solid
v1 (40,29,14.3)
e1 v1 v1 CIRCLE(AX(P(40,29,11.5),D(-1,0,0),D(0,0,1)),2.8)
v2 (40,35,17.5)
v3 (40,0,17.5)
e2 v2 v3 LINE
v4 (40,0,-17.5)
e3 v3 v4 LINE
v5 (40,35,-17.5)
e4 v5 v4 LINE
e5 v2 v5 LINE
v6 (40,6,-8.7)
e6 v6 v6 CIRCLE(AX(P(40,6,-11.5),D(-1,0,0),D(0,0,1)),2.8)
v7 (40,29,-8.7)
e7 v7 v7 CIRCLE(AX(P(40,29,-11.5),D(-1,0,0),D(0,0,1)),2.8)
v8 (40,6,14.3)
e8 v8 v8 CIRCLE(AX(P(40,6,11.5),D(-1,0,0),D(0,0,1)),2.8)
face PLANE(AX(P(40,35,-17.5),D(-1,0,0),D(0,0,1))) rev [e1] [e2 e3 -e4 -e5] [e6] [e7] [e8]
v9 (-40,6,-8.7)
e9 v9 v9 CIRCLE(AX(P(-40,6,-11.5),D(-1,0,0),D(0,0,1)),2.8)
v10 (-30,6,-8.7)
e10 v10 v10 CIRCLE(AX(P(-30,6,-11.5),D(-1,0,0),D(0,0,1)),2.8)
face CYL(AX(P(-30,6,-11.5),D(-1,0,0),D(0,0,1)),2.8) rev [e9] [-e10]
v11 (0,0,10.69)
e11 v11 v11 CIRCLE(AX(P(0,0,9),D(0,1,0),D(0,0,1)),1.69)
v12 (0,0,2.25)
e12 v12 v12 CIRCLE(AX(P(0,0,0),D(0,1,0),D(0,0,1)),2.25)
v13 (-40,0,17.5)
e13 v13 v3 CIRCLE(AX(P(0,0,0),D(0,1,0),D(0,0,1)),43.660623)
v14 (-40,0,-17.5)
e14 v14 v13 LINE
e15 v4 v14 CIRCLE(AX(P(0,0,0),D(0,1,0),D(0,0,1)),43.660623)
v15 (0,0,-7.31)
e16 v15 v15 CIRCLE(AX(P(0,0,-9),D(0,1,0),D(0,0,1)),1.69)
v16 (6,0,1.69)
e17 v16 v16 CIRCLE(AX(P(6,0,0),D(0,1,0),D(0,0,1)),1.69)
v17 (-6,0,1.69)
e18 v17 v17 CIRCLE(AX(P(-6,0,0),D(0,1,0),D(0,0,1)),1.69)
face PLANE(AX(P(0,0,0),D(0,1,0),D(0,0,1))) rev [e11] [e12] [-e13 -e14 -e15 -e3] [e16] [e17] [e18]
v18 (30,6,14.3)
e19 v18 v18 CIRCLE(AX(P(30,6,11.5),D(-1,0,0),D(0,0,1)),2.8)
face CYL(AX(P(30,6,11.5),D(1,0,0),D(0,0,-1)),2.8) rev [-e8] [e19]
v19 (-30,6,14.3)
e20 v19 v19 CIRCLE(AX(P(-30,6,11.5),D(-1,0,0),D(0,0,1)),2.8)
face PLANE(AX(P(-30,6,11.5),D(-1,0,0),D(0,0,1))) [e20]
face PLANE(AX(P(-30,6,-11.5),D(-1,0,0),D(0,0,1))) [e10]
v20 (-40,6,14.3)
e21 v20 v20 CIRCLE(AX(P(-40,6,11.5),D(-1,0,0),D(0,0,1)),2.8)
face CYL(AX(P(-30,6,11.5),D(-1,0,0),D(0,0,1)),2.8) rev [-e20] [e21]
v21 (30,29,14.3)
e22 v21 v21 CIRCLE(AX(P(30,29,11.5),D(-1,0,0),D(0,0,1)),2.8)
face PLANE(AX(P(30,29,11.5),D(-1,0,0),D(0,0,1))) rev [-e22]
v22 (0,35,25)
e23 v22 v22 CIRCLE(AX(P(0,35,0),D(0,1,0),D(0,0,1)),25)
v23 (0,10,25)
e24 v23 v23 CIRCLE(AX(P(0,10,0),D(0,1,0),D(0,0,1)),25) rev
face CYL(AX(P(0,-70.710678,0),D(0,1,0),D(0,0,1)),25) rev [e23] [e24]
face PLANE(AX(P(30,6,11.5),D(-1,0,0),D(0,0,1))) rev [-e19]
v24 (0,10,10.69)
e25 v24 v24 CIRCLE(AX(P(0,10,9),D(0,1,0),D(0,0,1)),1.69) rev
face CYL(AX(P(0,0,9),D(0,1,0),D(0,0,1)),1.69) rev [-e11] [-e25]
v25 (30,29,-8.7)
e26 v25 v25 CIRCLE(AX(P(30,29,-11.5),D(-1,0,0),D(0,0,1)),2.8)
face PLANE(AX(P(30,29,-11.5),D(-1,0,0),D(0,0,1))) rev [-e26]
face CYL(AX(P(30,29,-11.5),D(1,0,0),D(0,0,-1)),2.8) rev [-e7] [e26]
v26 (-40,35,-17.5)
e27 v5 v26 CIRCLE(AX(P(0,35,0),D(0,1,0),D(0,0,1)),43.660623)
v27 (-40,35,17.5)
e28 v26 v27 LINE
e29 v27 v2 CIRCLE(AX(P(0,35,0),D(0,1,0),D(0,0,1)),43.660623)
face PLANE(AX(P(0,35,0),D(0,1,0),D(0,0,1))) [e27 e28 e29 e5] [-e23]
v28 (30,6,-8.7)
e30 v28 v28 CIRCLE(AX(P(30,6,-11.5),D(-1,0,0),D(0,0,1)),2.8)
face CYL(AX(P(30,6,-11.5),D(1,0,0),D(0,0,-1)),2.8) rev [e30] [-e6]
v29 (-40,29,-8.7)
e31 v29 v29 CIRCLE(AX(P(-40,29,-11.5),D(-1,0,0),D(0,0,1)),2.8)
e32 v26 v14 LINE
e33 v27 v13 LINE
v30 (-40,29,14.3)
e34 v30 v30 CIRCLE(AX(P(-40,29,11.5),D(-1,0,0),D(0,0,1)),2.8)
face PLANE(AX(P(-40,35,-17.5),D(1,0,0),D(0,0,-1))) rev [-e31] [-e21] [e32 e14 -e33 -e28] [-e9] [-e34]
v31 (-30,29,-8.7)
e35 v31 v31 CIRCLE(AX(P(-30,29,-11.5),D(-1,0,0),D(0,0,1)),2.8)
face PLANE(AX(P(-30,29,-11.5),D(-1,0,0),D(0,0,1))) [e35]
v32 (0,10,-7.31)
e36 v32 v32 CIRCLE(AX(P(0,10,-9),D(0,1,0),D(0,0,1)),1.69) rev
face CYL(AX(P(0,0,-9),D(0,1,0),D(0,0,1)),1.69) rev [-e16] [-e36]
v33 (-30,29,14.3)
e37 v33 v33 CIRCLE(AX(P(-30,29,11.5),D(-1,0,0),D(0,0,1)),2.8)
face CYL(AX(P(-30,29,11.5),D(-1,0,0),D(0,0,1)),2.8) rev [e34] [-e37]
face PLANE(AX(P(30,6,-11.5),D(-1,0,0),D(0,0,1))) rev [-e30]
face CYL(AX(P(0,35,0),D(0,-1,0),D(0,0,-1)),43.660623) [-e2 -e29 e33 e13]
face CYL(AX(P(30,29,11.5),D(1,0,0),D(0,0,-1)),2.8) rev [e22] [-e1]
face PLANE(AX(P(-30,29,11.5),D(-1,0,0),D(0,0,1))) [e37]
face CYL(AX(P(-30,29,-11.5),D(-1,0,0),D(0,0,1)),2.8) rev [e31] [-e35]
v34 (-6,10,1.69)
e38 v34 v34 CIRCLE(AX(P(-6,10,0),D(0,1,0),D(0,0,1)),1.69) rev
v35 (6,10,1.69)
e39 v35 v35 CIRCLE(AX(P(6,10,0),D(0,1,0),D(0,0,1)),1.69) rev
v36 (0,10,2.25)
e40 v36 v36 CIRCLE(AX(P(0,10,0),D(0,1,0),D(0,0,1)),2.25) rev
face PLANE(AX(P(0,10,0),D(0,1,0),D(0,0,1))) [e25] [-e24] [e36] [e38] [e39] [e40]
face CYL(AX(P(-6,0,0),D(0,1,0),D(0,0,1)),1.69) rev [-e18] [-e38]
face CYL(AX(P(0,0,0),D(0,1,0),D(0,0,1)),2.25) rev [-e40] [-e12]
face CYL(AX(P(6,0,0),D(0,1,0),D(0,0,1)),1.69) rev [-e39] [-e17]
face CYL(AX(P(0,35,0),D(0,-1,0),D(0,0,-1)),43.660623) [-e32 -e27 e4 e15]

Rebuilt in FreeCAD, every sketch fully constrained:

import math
import FreeCAD as App
import Part
import Sketcher

doc = App.newDocument("Part")
body = doc.addObject("PartDesign::Body", "Body")

sketch1 = doc.addObject("Sketcher::SketchObject", "Sketch")
body.addObject(sketch1)
sketch1.AttachmentSupport = (doc.XZ_Plane, [""])
sketch1.MapMode = "FlatFace"
sketch1.addGeometry(Part.LineSegment(App.Vector(-40, -18, 0), App.Vector(-40, 18, 0)), False)
sketch1.addGeometry(Part.ArcOfCircle(Part.Circle(App.Vector(0, 0, 0), App.Vector(0, 0, 1), 44), math.radians(24), math.radians(156)), False)
sketch1.addGeometry(Part.LineSegment(App.Vector(40, 18, 0), App.Vector(40, -18, 0)), False)
sketch1.addGeometry(Part.ArcOfCircle(Part.Circle(App.Vector(0, 0, 0), App.Vector(0, 0, 1), 44), math.radians(-156), math.radians(-24)), False)
sketch1.addConstraint(Sketcher.Constraint("Coincident", 0, 2, 1, 2))
sketch1.addConstraint(Sketcher.Constraint("Coincident", 1, 1, 2, 1))
sketch1.addConstraint(Sketcher.Constraint("Coincident", 2, 2, 3, 2))
sketch1.addConstraint(Sketcher.Constraint("Coincident", 3, 1, 0, 1))
sketch1.addConstraint(Sketcher.Constraint("Vertical", 0))
sketch1.addConstraint(Sketcher.Constraint("Vertical", 2))
sketch1.addConstraint(Sketcher.Constraint("Coincident", 1, 3, -1, 1))
sketch1.addConstraint(Sketcher.Constraint("Coincident", 3, 3, -1, 1))
sketch1.addConstraint(Sketcher.Constraint("Equal", 1, 3))
sketch1.addConstraint(Sketcher.Constraint("Horizontal", 0, 2, 1, 1))
sketch1.addConstraint(Sketcher.Constraint("DistanceY", 0, 1, 0, 2, 35.0))
sketch1.addConstraint(Sketcher.Constraint("DistanceX", 0, 2, -1, 1, 40.0))
pad1 = doc.addObject("PartDesign::Pad", "Pad")
body.addObject(pad1)
pad1.Profile = sketch1
pad1.Length = 35
pad1.Reversed = True

sketch2 = doc.addObject("Sketcher::SketchObject", "Sketch001")
body.addObject(sketch2)
sketch2.AttachmentSupport = (doc.YZ_Plane, [""])
sketch2.MapMode = "FlatFace"
sketch2.AttachmentOffset = App.Placement(App.Vector(0, 0, -40), App.Rotation())
sketch2.addGeometry(Part.Circle(App.Vector(29, -11.5, 0), App.Vector(0, 0, 1), 2.8), False)
sketch2.addGeometry(Part.Circle(App.Vector(29, 11.5, 0), App.Vector(0, 0, 1), 2.8), False)
sketch2.addGeometry(Part.Circle(App.Vector(6, -11.5, 0), App.Vector(0, 0, 1), 2.8), False)
sketch2.addGeometry(Part.Circle(App.Vector(6, 11.5, 0), App.Vector(0, 0, 1), 2.8), False)
sketch2.addConstraint(Sketcher.Constraint("Equal", 0, 1))
sketch2.addConstraint(Sketcher.Constraint("Equal", 1, 2))
sketch2.addConstraint(Sketcher.Constraint("Equal", 2, 3))
sketch2.addConstraint(Sketcher.Constraint("Symmetric", 0, 3, 1, 3, -1))
sketch2.addConstraint(Sketcher.Constraint("Symmetric", 2, 3, 3, 3, -1))
sketch2.addConstraint(Sketcher.Constraint("Horizontal", 0, 3, 2, 3))
sketch2.addConstraint(Sketcher.Constraint("Diameter", 0, 5.6))
sketch2.addConstraint(Sketcher.Constraint("DistanceX", -1, 1, 0, 3, 29.0))
sketch2.addConstraint(Sketcher.Constraint("DistanceX", -1, 1, 2, 3, 6.0))
sketch2.addConstraint(Sketcher.Constraint("DistanceY", 0, 3, 1, 3, 23.0))
pocket1 = doc.addObject("PartDesign::Pocket", "Pocket")
body.addObject(pocket1)
pocket1.Profile = sketch2
pocket1.Length = 10
pocket1.Reversed = True

sketch3 = doc.addObject("Sketcher::SketchObject", "Sketch002")
body.addObject(sketch3)
sketch3.AttachmentSupport = (doc.YZ_Plane, [""])
sketch3.MapMode = "FlatFace"
sketch3.AttachmentOffset = App.Placement(App.Vector(0, 0, 40), App.Rotation())
sketch3.addGeometry(Part.Circle(App.Vector(29, -11.5, 0), App.Vector(0, 0, 1), 2.8), False)
sketch3.addGeometry(Part.Circle(App.Vector(29, 11.5, 0), App.Vector(0, 0, 1), 2.8), False)
sketch3.addGeometry(Part.Circle(App.Vector(6, -11.5, 0), App.Vector(0, 0, 1), 2.8), False)
sketch3.addGeometry(Part.Circle(App.Vector(6, 11.5, 0), App.Vector(0, 0, 1), 2.8), False)
sketch3.addConstraint(Sketcher.Constraint("Equal", 0, 1))
sketch3.addConstraint(Sketcher.Constraint("Equal", 1, 2))
sketch3.addConstraint(Sketcher.Constraint("Equal", 2, 3))
sketch3.addConstraint(Sketcher.Constraint("Symmetric", 0, 3, 1, 3, -1))
sketch3.addConstraint(Sketcher.Constraint("Symmetric", 2, 3, 3, 3, -1))
sketch3.addConstraint(Sketcher.Constraint("Horizontal", 0, 3, 2, 3))
sketch3.addConstraint(Sketcher.Constraint("Diameter", 0, 5.6))
sketch3.addConstraint(Sketcher.Constraint("DistanceX", -1, 1, 0, 3, 29.0))
sketch3.addConstraint(Sketcher.Constraint("DistanceX", -1, 1, 2, 3, 6.0))
sketch3.addConstraint(Sketcher.Constraint("DistanceY", 0, 3, 1, 3, 23.0))
pocket2 = doc.addObject("PartDesign::Pocket", "Pocket001")
body.addObject(pocket2)
pocket2.Profile = sketch3
pocket2.Length = 10

sketch4 = doc.addObject("Sketcher::SketchObject", "Sketch003")
body.addObject(sketch4)
sketch4.AttachmentSupport = (doc.XZ_Plane, [""])
sketch4.MapMode = "FlatFace"
sketch4.AttachmentOffset = App.Placement(App.Vector(0, 0, -35), App.Rotation())
sketch4.addGeometry(Part.Circle(App.Vector(0, -9, 0), App.Vector(0, 0, 1), 1.7), False)
sketch4.addGeometry(Part.Circle(App.Vector(6, 0, 0), App.Vector(0, 0, 1), 1.7), False)
sketch4.addGeometry(Part.Circle(App.Vector(0, 9, 0), App.Vector(0, 0, 1), 1.7), False)
sketch4.addGeometry(Part.Circle(App.Vector(-6, 0, 0), App.Vector(0, 0, 1), 1.7), False)
sketch4.addGeometry(Part.Circle(App.Vector(0, 0, 0), App.Vector(0, 0, 1), 2.2), False)
sketch4.addConstraint(Sketcher.Constraint("Coincident", 4, 3, -1, 1))
sketch4.addConstraint(Sketcher.Constraint("Equal", 0, 1))
sketch4.addConstraint(Sketcher.Constraint("Equal", 1, 2))
sketch4.addConstraint(Sketcher.Constraint("Equal", 2, 3))
sketch4.addConstraint(Sketcher.Constraint("Symmetric", 0, 3, 2, 3, -1, 1))
sketch4.addConstraint(Sketcher.Constraint("Symmetric", 1, 3, 3, 3, -1, 1))
sketch4.addConstraint(Sketcher.Constraint("PointOnObject", 0, 3, -2))
sketch4.addConstraint(Sketcher.Constraint("PointOnObject", 1, 3, -1))
sketch4.addConstraint(Sketcher.Constraint("Diameter", 4, 4.5))
sketch4.addConstraint(Sketcher.Constraint("Diameter", 0, 3.38))
sketch4.addConstraint(Sketcher.Constraint("DistanceY", 0, 3, -1, 1, 9.0))
sketch4.addConstraint(Sketcher.Constraint("DistanceX", -1, 1, 1, 3, 6.0))
pocket3 = doc.addObject("PartDesign::Pocket", "Pocket002")
body.addObject(pocket3)
pocket3.Profile = sketch4
pocket3.Type = "ThroughAll"
pocket3.Reversed = True

sketch5 = doc.addObject("Sketcher::SketchObject", "Sketch004")
body.addObject(sketch5)
sketch5.AttachmentSupport = (doc.XZ_Plane, [""])
sketch5.MapMode = "FlatFace"
sketch5.AttachmentOffset = App.Placement(App.Vector(0, 0, -35), App.Rotation())
sketch5.addGeometry(Part.Circle(App.Vector(0, 0, 0), App.Vector(0, 0, 1), 25), False)
sketch5.addConstraint(Sketcher.Constraint("Coincident", 0, 3, -1, 1))
sketch5.addConstraint(Sketcher.Constraint("Diameter", 0, 50.0))
pocket4 = doc.addObject("PartDesign::Pocket", "Pocket003")
body.addObject(pocket4)
pocket4.Profile = sketch5
pocket4.Length = 25
pocket4.Reversed = True

doc.recompute()
